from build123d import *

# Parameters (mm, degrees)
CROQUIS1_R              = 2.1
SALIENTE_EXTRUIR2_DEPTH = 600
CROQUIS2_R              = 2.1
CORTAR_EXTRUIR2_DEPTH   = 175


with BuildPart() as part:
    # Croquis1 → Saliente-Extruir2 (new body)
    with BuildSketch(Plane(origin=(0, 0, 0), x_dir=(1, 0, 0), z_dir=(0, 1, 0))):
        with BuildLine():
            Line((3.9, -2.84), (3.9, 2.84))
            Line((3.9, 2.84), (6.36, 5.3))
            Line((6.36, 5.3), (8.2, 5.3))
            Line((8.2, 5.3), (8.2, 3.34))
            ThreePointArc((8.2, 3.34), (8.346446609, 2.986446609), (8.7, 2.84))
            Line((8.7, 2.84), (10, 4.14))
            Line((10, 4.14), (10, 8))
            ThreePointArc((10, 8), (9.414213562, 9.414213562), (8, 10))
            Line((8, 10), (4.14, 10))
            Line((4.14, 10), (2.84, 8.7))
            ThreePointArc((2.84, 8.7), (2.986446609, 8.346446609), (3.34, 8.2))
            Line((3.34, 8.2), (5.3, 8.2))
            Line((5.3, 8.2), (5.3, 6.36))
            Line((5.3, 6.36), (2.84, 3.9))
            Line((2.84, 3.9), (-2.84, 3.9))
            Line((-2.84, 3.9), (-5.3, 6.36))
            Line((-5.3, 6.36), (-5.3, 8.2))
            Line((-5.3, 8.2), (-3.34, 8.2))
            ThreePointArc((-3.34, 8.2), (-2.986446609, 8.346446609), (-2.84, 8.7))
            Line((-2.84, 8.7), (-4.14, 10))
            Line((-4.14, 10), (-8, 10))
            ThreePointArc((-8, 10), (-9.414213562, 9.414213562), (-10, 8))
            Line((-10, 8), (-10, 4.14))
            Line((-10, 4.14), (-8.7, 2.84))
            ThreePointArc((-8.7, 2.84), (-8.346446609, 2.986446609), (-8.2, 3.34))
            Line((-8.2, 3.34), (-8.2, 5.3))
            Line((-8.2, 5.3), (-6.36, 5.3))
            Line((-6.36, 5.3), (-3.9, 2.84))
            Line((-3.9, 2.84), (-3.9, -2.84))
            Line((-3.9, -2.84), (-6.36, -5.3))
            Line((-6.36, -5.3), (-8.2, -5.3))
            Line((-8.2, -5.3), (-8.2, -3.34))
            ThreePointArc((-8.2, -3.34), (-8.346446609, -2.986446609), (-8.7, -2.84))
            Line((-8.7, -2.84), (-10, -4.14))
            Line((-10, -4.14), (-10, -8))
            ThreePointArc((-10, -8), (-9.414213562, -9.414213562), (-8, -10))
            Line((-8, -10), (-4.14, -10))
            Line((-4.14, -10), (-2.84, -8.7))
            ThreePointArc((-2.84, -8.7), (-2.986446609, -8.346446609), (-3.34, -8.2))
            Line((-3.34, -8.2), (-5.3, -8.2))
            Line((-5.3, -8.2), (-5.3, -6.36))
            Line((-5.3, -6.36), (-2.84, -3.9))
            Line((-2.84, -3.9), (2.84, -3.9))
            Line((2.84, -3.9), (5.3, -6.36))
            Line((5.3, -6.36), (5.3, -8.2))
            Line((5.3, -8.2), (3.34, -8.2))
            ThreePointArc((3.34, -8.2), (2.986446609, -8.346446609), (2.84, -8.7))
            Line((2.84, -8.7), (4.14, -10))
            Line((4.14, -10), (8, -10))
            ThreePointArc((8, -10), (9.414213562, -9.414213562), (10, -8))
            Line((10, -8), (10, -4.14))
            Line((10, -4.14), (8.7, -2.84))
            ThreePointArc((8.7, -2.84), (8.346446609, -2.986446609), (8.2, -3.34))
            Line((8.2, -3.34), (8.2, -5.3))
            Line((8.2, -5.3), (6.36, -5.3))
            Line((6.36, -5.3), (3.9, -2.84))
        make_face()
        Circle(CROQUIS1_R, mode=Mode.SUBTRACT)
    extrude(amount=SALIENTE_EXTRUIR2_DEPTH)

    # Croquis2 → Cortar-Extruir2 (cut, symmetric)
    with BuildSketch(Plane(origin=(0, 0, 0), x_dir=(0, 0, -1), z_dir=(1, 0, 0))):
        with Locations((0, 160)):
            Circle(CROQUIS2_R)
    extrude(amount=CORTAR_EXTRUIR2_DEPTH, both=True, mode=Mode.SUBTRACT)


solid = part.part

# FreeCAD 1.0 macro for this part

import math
import FreeCAD as App
import Part
import Sketcher

V = App.Vector
Q = App.Units.Quantity

doc = App.newDocument("Part")
params = doc.addObject("Spreadsheet::Sheet", "Params")
for row, (alias, value) in enumerate([
    ("sketch1_radius", "2 mm"),
    ("sketch1_diameter", "4.2 mm"),
    ("sketch1_radius2", "0.5 mm"),
    ("sketch1_width", "1.84 mm"),
    ("sketch1_width2", "3.86 mm"),
    ("pad1_length", "600 mm"),
    ("sketch2_diameter", "4.2 mm"),
    ("pocket1_length", "350 mm"),
], start=1):
    params.set(f"A{row}", alias)
    params.set(f"B{row}", "=" + value)
    params.setAlias(f"B{row}", alias)

body = doc.addObject("PartDesign::Body", "Body")

sketch1 = body.newObject("Sketcher::SketchObject", "Sketch")
sketch1.AttachmentSupport = (doc.getObject("XZ_Plane"), [""])
sketch1.MapMode = "FlatFace"
sketch1.addGeometry([
    Part.LineSegment(V(3.9, 2.84, 0), V(3.9, -2.84, 0)),
    Part.LineSegment(V(3.9, -2.84, 0), V(6.36, -5.3, 0)),
    Part.LineSegment(V(6.36, -5.3, 0), V(8.2, -5.3, 0)),
    Part.LineSegment(V(8.2, -5.3, 0), V(8.2, -3.34, 0)),
    Part.ArcOfCircle(Part.Circle(V(8.7, -3.34, 0), V(0, 0, 1), 0.5), math.radians(90), math.radians(180)),
    Part.LineSegment(V(8.7, -2.84, 0), V(10, -4.14, 0)),
    Part.LineSegment(V(10, -4.14, 0), V(10, -8, 0)),
    Part.ArcOfCircle(Part.Circle(V(8, -8, 0), V(0, 0, 1), 2), math.radians(-90), math.radians(0)),
    Part.LineSegment(V(8, -10, 0), V(4.14, -10, 0)),
    Part.LineSegment(V(4.14, -10, 0), V(2.84, -8.7, 0)),
    Part.ArcOfCircle(Part.Circle(V(3.34, -8.7, 0), V(0, 0, 1), 0.5), math.radians(90), math.radians(180)),
    Part.LineSegment(V(3.34, -8.2, 0), V(5.3, -8.2, 0)),
    Part.LineSegment(V(5.3, -8.2, 0), V(5.3, -6.36, 0)),
    Part.LineSegment(V(5.3, -6.36, 0), V(2.84, -3.9, 0)),
    Part.LineSegment(V(2.84, -3.9, 0), V(-2.84, -3.9, 0)),
    Part.LineSegment(V(-2.84, -3.9, 0), V(-5.3, -6.36, 0)),
    Part.LineSegment(V(-5.3, -6.36, 0), V(-5.3, -8.2, 0)),
    Part.LineSegment(V(-5.3, -8.2, 0), V(-3.34, -8.2, 0)),
    Part.ArcOfCircle(Part.Circle(V(-3.34, -8.7, 0), V(0, 0, 1), 0.5), math.radians(0), math.radians(90)),
    Part.LineSegment(V(-2.84, -8.7, 0), V(-4.14, -10, 0)),
    Part.LineSegment(V(-4.14, -10, 0), V(-8, -10, 0)),
    Part.ArcOfCircle(Part.Circle(V(-8, -8, 0), V(0, 0, 1), 2), math.radians(-180), math.radians(-90)),
    Part.LineSegment(V(-10, -8, 0), V(-10, -4.14, 0)),
    Part.LineSegment(V(-10, -4.14, 0), V(-8.7, -2.84, 0)),
    Part.ArcOfCircle(Part.Circle(V(-8.7, -3.34, 0), V(0, 0, 1), 0.5), math.radians(0), math.radians(90)),
    Part.LineSegment(V(-8.2, -3.34, 0), V(-8.2, -5.3, 0)),
    Part.LineSegment(V(-8.2, -5.3, 0), V(-6.36, -5.3, 0)),
    Part.LineSegment(V(-6.36, -5.3, 0), V(-3.9, -2.84, 0)),
    Part.LineSegment(V(-3.9, -2.84, 0), V(-3.9, 2.84, 0)),
    Part.LineSegment(V(-3.9, 2.84, 0), V(-6.36, 5.3, 0)),
    Part.LineSegment(V(-6.36, 5.3, 0), V(-8.2, 5.3, 0)),
    Part.LineSegment(V(-8.2, 5.3, 0), V(-8.2, 3.34, 0)),
    Part.ArcOfCircle(Part.Circle(V(-8.7, 3.34, 0), V(0, 0, 1), 0.5), math.radians(-90), math.radians(0)),
    Part.LineSegment(V(-8.7, 2.84, 0), V(-10, 4.14, 0)),
    Part.LineSegment(V(-10, 4.14, 0), V(-10, 8, 0)),
    Part.ArcOfCircle(Part.Circle(V(-8, 8, 0), V(0, 0, 1), 2), math.radians(90), math.radians(180)),
    Part.LineSegment(V(-8, 10, 0), V(-4.14, 10, 0)),
    Part.LineSegment(V(-4.14, 10, 0), V(-2.84, 8.7, 0)),
    Part.ArcOfCircle(Part.Circle(V(-3.34, 8.7, 0), V(0, 0, 1), 0.5), math.radians(-90), math.radians(0)),
    Part.LineSegment(V(-3.34, 8.2, 0), V(-5.3, 8.2, 0)),
    Part.LineSegment(V(-5.3, 8.2, 0), V(-5.3, 6.36, 0)),
    Part.LineSegment(V(-5.3, 6.36, 0), V(-2.84, 3.9, 0)),
    Part.LineSegment(V(-2.84, 3.9, 0), V(2.84, 3.9, 0)),
    Part.LineSegment(V(2.84, 3.9, 0), V(5.3, 6.36, 0)),
    Part.LineSegment(V(5.3, 6.36, 0), V(5.3, 8.2, 0)),
    Part.LineSegment(V(5.3, 8.2, 0), V(3.34, 8.2, 0)),
    Part.ArcOfCircle(Part.Circle(V(3.34, 8.7, 0), V(0, 0, 1), 0.5), math.radians(180), math.radians(270)),
    Part.LineSegment(V(2.84, 8.7, 0), V(4.14, 10, 0)),
    Part.LineSegment(V(4.14, 10, 0), V(8, 10, 0)),
    Part.ArcOfCircle(Part.Circle(V(8, 8, 0), V(0, 0, 1), 2), math.radians(0), math.radians(90)),
    Part.LineSegment(V(10, 8, 0), V(10, 4.14, 0)),
    Part.LineSegment(V(10, 4.14, 0), V(8.7, 2.84, 0)),
    Part.ArcOfCircle(Part.Circle(V(8.7, 3.34, 0), V(0, 0, 1), 0.5), math.radians(180), math.radians(270)),
    Part.LineSegment(V(8.2, 3.34, 0), V(8.2, 5.3, 0)),
    Part.LineSegment(V(8.2, 5.3, 0), V(6.36, 5.3, 0)),
    Part.LineSegment(V(6.36, 5.3, 0), V(3.9, 2.84, 0)),
    Part.Circle(V(0, 0, 0), V(0, 0, 1), 2.1),
], False)
sketch1.addConstraint([
    Sketcher.Constraint("Coincident", 0, 2, 1, 1),
    Sketcher.Constraint("Coincident", 1, 2, 2, 1),
    Sketcher.Constraint("Coincident", 2, 2, 3, 1),
    Sketcher.Constraint("Tangent", 3, 2, 4, 2),
    Sketcher.Constraint("Coincident", 4, 1, 5, 1),
    Sketcher.Constraint("Coincident", 5, 2, 6, 1),
    Sketcher.Constraint("Tangent", 6, 2, 7, 2),
    Sketcher.Constraint("Tangent", 7, 1, 8, 1),
    Sketcher.Constraint("Coincident", 8, 2, 9, 1),
    Sketcher.Constraint("Coincident", 9, 2, 10, 2),
    Sketcher.Constraint("Tangent", 10, 1, 11, 1),
    Sketcher.Constraint("Coincident", 11, 2, 12, 1),
    Sketcher.Constraint("Coincident", 12, 2, 13, 1),
    Sketcher.Constraint("Coincident", 13, 2, 14, 1),
    Sketcher.Constraint("Coincident", 14, 2, 15, 1),
    Sketcher.Constraint("Coincident", 15, 2, 16, 1),
    Sketcher.Constraint("Coincident", 16, 2, 17, 1),
    Sketcher.Constraint("Tangent", 17, 2, 18, 2),
    Sketcher.Constraint("Coincident", 18, 1, 19, 1),
    Sketcher.Constraint("Coincident", 19, 2, 20, 1),
    Sketcher.Constraint("Tangent", 20, 2, 21, 2),
    Sketcher.Constraint("Tangent", 21, 1, 22, 1),
    Sketcher.Constraint("Coincident", 22, 2, 23, 1),
    Sketcher.Constraint("Coincident", 23, 2, 24, 2),
    Sketcher.Constraint("Tangent", 24, 1, 25, 1),
    Sketcher.Constraint("Coincident", 25, 2, 26, 1),
    Sketcher.Constraint("Coincident", 26, 2, 27, 1),
    Sketcher.Constraint("Coincident", 27, 2, 28, 1),
    Sketcher.Constraint("Coincident", 28, 2, 29, 1),
    Sketcher.Constraint("Coincident", 29, 2, 30, 1),
    Sketcher.Constraint("Coincident", 30, 2, 31, 1),
    Sketcher.Constraint("Tangent", 31, 2, 32, 2),
    Sketcher.Constraint("Coincident", 32, 1, 33, 1),
    Sketcher.Constraint("Coincident", 33, 2, 34, 1),
    Sketcher.Constraint("Tangent", 34, 2, 35, 2),
    Sketcher.Constraint("Tangent", 35, 1, 36, 1),
    Sketcher.Constraint("Coincident", 36, 2, 37, 1),
    Sketcher.Constraint("Coincident", 37, 2, 38, 2),
    Sketcher.Constraint("Tangent", 38, 1, 39, 1),
    Sketcher.Constraint("Coincident", 39, 2, 40, 1),
    Sketcher.Constraint("Coincident", 40, 2, 41, 1),
    Sketcher.Constraint("Coincident", 41, 2, 42, 1),
    Sketcher.Constraint("Coincident", 42, 2, 43, 1),
    Sketcher.Constraint("Coincident", 43, 2, 44, 1),
    Sketcher.Constraint("Coincident", 44, 2, 45, 1),
    Sketcher.Constraint("Tangent", 45, 2, 46, 2),
    Sketcher.Constraint("Coincident", 46, 1, 47, 1),
    Sketcher.Constraint("Coincident", 47, 2, 48, 1),
    Sketcher.Constraint("Tangent", 48, 2, 49, 2),
    Sketcher.Constraint("Tangent", 49, 1, 50, 1),
    Sketcher.Constraint("Coincident", 50, 2, 51, 1),
    Sketcher.Constraint("Coincident", 51, 2, 52, 2),
    Sketcher.Constraint("Tangent", 52, 1, 53, 1),
    Sketcher.Constraint("Coincident", 53, 2, 54, 1),
    Sketcher.Constraint("Coincident", 54, 2, 55, 1),
    Sketcher.Constraint("Coincident", 55, 2, 0, 1),
    Sketcher.Constraint("Vertical", 0),
    Sketcher.Constraint("Horizontal", 2),
    Sketcher.Constraint("Vertical", 3),
    Sketcher.Constraint("Vertical", 6),
    Sketcher.Constraint("Horizontal", 8),
    Sketcher.Constraint("Horizontal", 11),
    Sketcher.Constraint("Vertical", 12),
    Sketcher.Constraint("Horizontal", 14),
    Sketcher.Constraint("Vertical", 16),
    Sketcher.Constraint("Horizontal", 17),
    Sketcher.Constraint("Horizontal", 20),
    Sketcher.Constraint("Vertical", 22),
    Sketcher.Constraint("Vertical", 25),
    Sketcher.Constraint("Horizontal", 26),
    Sketcher.Constraint("Vertical", 28),
    Sketcher.Constraint("Horizontal", 30),
    Sketcher.Constraint("Vertical", 31),
    Sketcher.Constraint("Vertical", 34),
    Sketcher.Constraint("Horizontal", 36),
    Sketcher.Constraint("Horizontal", 39),
    Sketcher.Constraint("Vertical", 40),
    Sketcher.Constraint("Horizontal", 42),
    Sketcher.Constraint("Vertical", 44),
    Sketcher.Constraint("Horizontal", 45),
    Sketcher.Constraint("Horizontal", 48),
    Sketcher.Constraint("Vertical", 50),
    Sketcher.Constraint("Vertical", 53),
    Sketcher.Constraint("Horizontal", 54),
    Sketcher.Constraint("Coincident", 56, 3, -1, 1),
    Sketcher.Constraint("Equal", 4, 10),
    Sketcher.Constraint("Equal", 10, 18),
    Sketcher.Constraint("Equal", 7, 21),
    Sketcher.Constraint("Equal", 18, 24),
    Sketcher.Constraint("Equal", 24, 32),
    Sketcher.Constraint("Equal", 21, 35),
    Sketcher.Constraint("Equal", 32, 38),
    Sketcher.Constraint("Equal", 38, 46),
    Sketcher.Constraint("Equal", 35, 49),
    Sketcher.Constraint("Equal", 46, 52),
    Sketcher.Constraint("Symmetric", 4, 3, 32, 3, -1, 1),
    Sketcher.Constraint("Symmetric", 7, 3, 35, 3, -1, 1),
    Sketcher.Constraint("Symmetric", 10, 3, 38, 3, -1, 1),
    Sketcher.Constraint("Symmetric", 18, 3, 46, 3, -1, 1),
    Sketcher.Constraint("Symmetric", 21, 3, 49, 3, -1, 1),
    Sketcher.Constraint("Symmetric", 24, 3, 52, 3, -1, 1),
    Sketcher.Constraint("Symmetric", 0, 2, 28, 2, -1, 1),
    Sketcher.Constraint("Symmetric", 1, 2, 29, 2, -1, 1),
    Sketcher.Constraint("Symmetric", 12, 2, 40, 2, -1, 1),
    Sketcher.Constraint("Symmetric", 13, 2, 41, 2, -1, 1),
    Sketcher.Constraint("Symmetric", 15, 2, 43, 2, -1, 1),
    Sketcher.Constraint("Symmetric", 26, 2, 54, 2, -1, 1),
    Sketcher.Constraint("Symmetric", 10, 3, 18, 3, -2),
    Sketcher.Constraint("Symmetric", 7, 3, 21, 3, -2),
    Sketcher.Constraint("Symmetric", 4, 3, 24, 3, -2),
    Sketcher.Constraint("Symmetric", 12, 2, 15, 2, -2),
    Sketcher.Constraint("Symmetric", 1, 2, 26, 2, -2),
    Sketcher.Constraint("Parallel", 1, 5),
    Sketcher.Constraint("Parallel", 5, 9),
    Sketcher.Constraint("Parallel", 9, 13),
    Sketcher.Constraint("Perpendicular", 13, 15),
    Sketcher.Constraint("Parallel", 15, 19),
    Sketcher.Constraint("Parallel", 19, 23),
    Sketcher.Constraint("Parallel", 23, 27),
    Sketcher.Constraint("Parallel", 29, 33),
    Sketcher.Constraint("Parallel", 33, 37),
    Sketcher.Constraint("Perpendicular", 41, 43),
    Sketcher.Constraint("Parallel", 43, 47),
    Sketcher.Constraint("Parallel", 47, 51),
    Sketcher.Constraint("Parallel", 51, 55),
    Sketcher.Constraint("Horizontal", 0, 2, 4, 1),
    Sketcher.Constraint("Horizontal", 18, 3, 9, 2),
    Sketcher.Constraint("Horizontal", 9, 2, 18, 1),
    Sketcher.Constraint("Horizontal", 5, 2, 22, 2),
    Sketcher.Constraint("Horizontal", 23, 2, 27, 2),
    Sketcher.Constraint("Horizontal", 46, 3, 37, 2),
    Sketcher.Constraint("Horizontal", 37, 2, 46, 1),
    Sketcher.Constraint("Horizontal", 33, 2, 50, 2),
    Sketcher.Constraint("Vertical", 52, 3, 4, 1),
    Sketcher.Constraint("Vertical", 9, 2, 13, 2),
    Sketcher.Constraint("Vertical", 23, 2, 32, 1),
    Sketcher.Constraint("Equal", 42, 0),
    Sketcher.Constraint("Equal", 45, 3),
    Sketcher.Constraint("Equal", 48, 6),
    Sketcher.Constraint("Equal", 54, 12),
    Sketcher.Constraint("Equal", 5, 9),
    Sketcher.Constraint("Radius", 7, Q("2 mm")),
    Sketcher.Constraint("Diameter", 56, Q("4.2 mm")),
    Sketcher.Constraint("Radius", 4, Q("0.5 mm")),
    Sketcher.Constraint("DistanceX", -1, 1, 7, 3, Q("8 mm")),
    Sketcher.Constraint("DistanceX", 2, 1, 2, 2, Q("1.84 mm")),
    Sketcher.Constraint("DistanceX", 8, 2, 8, 1, Q("3.86 mm")),
    Sketcher.Constraint("DistanceX", 11, 1, 11, 2, Q("1.96 mm")),
    Sketcher.Constraint("DistanceX", 14, 2, 14, 1, Q("5.68 mm")),
])
sketch1.setExpression("Constraints[141]", "Params.sketch1_radius")
sketch1.setExpression("Constraints[142]", "Params.sketch1_diameter")
sketch1.setExpression("Constraints[143]", "Params.sketch1_radius2")
sketch1.setExpression("Constraints[145]", "Params.sketch1_width")
sketch1.setExpression("Constraints[146]", "Params.sketch1_width2")
pad1 = body.newObject("PartDesign::Pad", "Pad")
pad1.Profile = sketch1
pad1.setExpression("Length", "Params.pad1_length")
pad1.Reversed = True

sketch2 = body.newObject("Sketcher::SketchObject", "Sketch001")
sketch2.AttachmentSupport = (doc.getObject("YZ_Plane"), [""])
sketch2.MapMode = "FlatFace"
sketch2.addGeometry(Part.Circle(V(160, 0, 0), V(0, 0, 1), 2.1), False)
sketch2.addConstraint([
    Sketcher.Constraint("PointOnObject", 0, 3, -1),
    Sketcher.Constraint("Diameter", 0, Q("4.2 mm")),
    Sketcher.Constraint("DistanceX", -1, 1, 0, 3, Q("160 mm")),
])
sketch2.setExpression("Constraints[1]", "Params.sketch2_diameter")
pocket1 = body.newObject("PartDesign::Pocket", "Pocket")
pocket1.Profile = sketch2
pocket1.setExpression("Length", "Params.pocket1_length")
pocket1.Midplane = True

doc.recompute()
